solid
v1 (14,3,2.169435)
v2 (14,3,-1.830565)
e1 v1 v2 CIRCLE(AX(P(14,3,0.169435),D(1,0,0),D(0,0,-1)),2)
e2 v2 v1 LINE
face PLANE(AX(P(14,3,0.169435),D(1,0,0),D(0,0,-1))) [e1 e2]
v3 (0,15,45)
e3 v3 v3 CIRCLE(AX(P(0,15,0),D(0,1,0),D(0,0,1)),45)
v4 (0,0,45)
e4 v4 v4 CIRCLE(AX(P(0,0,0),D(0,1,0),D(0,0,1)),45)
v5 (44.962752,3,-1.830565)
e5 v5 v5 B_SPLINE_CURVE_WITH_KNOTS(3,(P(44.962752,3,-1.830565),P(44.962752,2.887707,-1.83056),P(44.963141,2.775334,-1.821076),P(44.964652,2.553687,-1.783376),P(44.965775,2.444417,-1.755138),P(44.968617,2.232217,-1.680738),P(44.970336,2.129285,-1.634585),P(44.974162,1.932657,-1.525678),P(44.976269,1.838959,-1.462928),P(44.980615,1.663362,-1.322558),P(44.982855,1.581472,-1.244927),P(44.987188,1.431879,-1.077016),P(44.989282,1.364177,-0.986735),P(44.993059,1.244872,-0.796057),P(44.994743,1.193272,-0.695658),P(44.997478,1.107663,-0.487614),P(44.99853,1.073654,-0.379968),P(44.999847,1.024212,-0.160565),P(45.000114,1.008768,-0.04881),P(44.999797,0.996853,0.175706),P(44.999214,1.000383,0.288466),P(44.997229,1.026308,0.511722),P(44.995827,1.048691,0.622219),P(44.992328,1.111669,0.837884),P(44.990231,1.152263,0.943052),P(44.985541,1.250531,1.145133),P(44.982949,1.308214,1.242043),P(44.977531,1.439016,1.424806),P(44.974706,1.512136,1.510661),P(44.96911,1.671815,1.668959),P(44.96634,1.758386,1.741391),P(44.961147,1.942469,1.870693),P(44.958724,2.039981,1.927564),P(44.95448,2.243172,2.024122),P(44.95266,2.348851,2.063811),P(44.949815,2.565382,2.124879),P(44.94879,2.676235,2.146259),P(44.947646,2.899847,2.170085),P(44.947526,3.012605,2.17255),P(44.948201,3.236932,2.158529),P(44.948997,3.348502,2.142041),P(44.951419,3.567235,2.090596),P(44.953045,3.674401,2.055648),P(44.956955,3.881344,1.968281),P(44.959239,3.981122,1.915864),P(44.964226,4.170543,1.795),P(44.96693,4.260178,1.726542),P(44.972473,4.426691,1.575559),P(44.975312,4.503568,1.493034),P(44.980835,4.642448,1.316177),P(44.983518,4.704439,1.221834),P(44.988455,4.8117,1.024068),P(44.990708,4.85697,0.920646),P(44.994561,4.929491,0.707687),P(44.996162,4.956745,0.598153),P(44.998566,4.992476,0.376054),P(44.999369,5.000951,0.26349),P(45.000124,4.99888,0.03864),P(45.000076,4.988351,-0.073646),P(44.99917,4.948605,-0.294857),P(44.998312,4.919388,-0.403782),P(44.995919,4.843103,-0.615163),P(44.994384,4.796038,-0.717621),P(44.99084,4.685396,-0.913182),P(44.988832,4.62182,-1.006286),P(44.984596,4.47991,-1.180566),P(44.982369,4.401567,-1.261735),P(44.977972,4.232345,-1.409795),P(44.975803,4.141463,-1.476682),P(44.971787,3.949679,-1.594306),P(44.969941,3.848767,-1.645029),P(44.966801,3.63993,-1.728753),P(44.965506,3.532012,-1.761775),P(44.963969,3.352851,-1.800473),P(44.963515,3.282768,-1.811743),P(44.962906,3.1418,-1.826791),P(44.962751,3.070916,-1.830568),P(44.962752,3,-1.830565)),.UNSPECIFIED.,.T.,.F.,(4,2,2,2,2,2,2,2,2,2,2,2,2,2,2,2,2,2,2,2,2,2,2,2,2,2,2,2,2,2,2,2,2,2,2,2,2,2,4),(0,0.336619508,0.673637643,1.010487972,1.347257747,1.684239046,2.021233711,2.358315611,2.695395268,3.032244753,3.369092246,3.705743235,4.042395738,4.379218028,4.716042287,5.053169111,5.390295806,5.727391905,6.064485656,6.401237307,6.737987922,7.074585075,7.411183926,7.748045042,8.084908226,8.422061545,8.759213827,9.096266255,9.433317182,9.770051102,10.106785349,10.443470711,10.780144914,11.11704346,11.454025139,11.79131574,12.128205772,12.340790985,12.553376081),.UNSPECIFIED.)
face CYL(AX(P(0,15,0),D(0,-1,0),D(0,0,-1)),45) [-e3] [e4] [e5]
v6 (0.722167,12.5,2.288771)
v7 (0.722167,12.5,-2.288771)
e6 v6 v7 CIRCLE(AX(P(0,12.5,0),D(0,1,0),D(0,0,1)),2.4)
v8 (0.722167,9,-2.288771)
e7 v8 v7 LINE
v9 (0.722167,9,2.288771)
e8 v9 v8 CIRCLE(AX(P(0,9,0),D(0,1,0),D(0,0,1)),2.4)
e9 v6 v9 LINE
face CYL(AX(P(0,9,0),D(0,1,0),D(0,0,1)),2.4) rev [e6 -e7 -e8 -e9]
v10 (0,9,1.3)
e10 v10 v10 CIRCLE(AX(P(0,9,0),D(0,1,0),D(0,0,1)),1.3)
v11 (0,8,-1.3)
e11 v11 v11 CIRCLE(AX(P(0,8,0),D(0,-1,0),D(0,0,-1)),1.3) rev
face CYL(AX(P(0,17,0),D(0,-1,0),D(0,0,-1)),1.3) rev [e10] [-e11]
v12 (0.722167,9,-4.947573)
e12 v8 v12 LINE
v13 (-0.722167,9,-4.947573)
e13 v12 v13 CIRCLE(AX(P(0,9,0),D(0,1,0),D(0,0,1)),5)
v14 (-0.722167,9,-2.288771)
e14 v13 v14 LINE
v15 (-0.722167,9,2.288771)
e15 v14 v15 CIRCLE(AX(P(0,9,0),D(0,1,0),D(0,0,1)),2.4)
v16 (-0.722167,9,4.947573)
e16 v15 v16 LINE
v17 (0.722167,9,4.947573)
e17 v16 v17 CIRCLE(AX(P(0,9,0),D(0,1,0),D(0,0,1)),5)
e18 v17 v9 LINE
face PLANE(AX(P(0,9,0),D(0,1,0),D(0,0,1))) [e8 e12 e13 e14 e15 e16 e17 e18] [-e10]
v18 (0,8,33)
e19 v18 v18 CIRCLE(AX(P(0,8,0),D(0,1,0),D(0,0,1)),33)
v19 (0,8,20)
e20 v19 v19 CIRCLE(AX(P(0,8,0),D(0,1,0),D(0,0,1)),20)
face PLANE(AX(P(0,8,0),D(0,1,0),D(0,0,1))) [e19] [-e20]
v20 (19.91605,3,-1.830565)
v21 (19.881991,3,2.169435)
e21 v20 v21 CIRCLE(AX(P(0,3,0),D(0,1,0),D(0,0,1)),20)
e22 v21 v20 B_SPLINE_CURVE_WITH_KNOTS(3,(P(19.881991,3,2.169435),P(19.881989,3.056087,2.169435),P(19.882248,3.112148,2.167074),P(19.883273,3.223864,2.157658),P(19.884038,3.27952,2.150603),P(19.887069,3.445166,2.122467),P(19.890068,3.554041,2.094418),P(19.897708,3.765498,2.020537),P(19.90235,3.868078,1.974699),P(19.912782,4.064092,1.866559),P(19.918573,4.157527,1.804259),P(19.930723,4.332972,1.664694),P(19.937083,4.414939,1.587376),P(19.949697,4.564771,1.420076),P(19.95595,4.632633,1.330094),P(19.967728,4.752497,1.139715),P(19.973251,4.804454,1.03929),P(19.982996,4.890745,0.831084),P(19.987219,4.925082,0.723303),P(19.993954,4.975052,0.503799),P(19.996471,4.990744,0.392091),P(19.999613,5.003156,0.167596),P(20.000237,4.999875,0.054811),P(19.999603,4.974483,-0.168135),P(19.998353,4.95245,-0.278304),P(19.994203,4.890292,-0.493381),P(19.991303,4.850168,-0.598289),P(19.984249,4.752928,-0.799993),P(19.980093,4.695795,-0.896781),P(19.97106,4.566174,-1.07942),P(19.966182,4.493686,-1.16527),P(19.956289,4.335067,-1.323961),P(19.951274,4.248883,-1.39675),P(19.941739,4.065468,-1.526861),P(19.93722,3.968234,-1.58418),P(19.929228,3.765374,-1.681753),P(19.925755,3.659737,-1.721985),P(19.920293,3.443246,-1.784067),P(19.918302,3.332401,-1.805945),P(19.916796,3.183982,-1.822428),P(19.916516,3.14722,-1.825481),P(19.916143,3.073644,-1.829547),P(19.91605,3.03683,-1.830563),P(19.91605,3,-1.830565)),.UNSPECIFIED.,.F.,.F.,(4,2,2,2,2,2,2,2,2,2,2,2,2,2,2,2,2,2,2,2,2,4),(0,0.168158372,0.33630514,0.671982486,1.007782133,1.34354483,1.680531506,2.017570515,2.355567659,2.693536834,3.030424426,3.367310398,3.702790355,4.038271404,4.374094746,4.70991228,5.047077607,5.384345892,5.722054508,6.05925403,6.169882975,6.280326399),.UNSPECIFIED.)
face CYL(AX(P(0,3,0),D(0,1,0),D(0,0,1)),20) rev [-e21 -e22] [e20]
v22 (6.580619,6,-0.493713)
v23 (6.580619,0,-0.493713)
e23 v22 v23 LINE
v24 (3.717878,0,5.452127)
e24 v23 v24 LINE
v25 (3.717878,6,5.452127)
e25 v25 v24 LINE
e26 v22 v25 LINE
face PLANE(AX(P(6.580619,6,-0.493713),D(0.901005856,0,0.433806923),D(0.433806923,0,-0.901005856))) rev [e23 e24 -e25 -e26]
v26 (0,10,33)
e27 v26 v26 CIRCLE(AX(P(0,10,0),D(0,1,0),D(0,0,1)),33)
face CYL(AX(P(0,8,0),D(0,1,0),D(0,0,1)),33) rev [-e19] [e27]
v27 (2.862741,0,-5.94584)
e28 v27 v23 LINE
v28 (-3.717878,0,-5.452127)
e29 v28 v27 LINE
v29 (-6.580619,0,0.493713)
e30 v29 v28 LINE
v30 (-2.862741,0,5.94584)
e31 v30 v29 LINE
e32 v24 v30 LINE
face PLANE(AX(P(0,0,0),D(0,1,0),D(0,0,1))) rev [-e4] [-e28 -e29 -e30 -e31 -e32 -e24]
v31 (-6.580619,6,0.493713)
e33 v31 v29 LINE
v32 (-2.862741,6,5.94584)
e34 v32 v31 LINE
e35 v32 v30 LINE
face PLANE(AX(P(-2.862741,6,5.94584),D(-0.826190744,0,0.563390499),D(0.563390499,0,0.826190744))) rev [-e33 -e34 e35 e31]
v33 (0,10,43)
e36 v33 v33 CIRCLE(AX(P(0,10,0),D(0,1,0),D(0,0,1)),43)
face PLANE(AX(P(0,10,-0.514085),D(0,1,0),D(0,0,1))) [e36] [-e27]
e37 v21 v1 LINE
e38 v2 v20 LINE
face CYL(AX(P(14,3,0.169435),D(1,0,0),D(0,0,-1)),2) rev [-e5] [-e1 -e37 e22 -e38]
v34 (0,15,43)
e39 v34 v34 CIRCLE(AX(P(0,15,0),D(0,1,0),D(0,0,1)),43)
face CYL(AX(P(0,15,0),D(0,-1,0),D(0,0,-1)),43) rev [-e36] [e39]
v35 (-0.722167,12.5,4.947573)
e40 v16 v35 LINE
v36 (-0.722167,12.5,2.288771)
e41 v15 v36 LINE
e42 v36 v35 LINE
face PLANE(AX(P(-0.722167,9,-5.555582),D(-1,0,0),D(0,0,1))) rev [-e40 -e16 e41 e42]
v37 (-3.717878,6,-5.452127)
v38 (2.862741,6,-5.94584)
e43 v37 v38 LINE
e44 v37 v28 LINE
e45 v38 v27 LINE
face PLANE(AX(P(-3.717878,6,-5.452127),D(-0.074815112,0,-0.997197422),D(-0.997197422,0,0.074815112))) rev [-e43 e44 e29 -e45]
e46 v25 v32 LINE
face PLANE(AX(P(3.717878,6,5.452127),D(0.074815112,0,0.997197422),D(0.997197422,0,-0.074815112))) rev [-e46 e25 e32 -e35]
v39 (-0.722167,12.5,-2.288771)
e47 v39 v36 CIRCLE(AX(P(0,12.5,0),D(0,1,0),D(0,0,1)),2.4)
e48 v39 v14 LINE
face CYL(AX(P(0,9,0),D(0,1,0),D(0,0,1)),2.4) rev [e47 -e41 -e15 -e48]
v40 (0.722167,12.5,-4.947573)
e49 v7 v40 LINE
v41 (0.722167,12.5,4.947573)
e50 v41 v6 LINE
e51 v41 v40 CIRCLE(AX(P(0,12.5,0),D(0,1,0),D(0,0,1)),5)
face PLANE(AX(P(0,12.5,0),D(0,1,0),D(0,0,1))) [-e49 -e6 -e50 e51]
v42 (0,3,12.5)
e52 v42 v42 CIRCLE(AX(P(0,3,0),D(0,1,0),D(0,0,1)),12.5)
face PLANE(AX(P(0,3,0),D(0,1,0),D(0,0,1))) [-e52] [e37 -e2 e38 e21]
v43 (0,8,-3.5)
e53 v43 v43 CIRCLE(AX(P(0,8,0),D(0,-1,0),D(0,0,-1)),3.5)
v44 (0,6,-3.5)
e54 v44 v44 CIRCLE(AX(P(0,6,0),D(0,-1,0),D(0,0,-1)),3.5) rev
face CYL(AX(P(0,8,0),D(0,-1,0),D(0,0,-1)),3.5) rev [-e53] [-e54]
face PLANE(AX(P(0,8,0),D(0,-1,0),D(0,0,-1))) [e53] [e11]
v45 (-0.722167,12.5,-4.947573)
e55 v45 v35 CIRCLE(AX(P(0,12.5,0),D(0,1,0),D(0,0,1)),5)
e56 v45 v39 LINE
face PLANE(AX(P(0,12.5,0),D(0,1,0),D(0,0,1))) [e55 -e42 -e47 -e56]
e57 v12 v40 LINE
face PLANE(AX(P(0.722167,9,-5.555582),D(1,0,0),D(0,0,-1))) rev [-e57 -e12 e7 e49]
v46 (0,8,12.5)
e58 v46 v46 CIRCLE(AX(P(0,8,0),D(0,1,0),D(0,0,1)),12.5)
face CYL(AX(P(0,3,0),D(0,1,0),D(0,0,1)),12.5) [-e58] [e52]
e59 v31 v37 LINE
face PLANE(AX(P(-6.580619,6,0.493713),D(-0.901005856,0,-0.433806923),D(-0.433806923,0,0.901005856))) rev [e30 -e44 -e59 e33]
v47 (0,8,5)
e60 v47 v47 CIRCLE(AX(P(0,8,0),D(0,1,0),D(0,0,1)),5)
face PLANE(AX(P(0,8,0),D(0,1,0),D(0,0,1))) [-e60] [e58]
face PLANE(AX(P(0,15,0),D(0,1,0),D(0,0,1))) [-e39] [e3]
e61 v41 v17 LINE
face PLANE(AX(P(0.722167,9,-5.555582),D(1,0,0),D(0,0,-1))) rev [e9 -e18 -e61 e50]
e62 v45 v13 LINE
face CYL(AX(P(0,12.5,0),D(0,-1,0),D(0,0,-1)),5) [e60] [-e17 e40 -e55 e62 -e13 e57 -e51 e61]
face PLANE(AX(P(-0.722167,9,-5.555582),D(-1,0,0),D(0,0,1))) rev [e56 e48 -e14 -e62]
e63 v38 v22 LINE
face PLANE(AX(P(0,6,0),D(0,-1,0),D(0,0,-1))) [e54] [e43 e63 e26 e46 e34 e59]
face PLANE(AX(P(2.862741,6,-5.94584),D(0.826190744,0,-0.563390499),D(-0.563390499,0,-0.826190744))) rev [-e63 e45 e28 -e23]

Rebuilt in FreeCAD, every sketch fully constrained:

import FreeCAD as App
import Part
import Sketcher

V = App.Vector
Q = App.Units.Quantity


def faces_at(feature, points):
    """Names of the faces that lie closest to the given points."""
    faces = feature.Shape.Faces
    near = lambda p: min(range(len(faces)), key=lambda i: faces[i].distToShape(Part.Vertex(*p))[0])
    return sorted({f"Face{near(p) + 1}" for p in points})


def add_polygon(sketch, points):
    """Adds a closed chain of lines whose ends are joined by coincident constraints."""
    first, n = sketch.GeometryCount, len(points)
    for a, b in zip(points, points[1:] + points[:1]):
        sketch.addGeometry(Part.LineSegment(App.Vector(*a, 0), App.Vector(*b, 0)), False)
    for i in range(n):
        sketch.addConstraint(Sketcher.Constraint("Coincident", first + i, 2, first + (i + 1) % n, 1))

doc = App.newDocument("Part")
params = doc.addObject("Spreadsheet::Sheet", "Params")
for row, (alias, value) in enumerate([
    ("sketch1_diameter", "90 mm"),
    ("pad1_length", "15 mm"),
    ("thickness_wall", "2 mm"),
    ("pad2_length", "8 mm"),
    ("sketch3_diameter", "66 mm"),
    ("pocket1_length", "2 mm"),
    ("sketch4_diameter", "10 mm"),
    ("pad3_length", "4.5 mm"),
    ("pocket2_length", "3.5 mm"),
    ("sketch6_diameter", "4.8 mm"),
    ("pocket3_length", "3.5 mm"),
    ("sketch7_diameter", "2.6 mm"),
    ("pocket4_length", "17 mm"),
    ("sketch8_diameter", "7 mm"),
    ("pocket5_length", "8 mm"),
    ("sketch9_diameter", "4 mm"),
    ("pocket6_length", "77.485293 mm"),
    ("pocket6_length2", "1 mm"),
    ("sketch10_diameter", "40 mm"),
    ("sketch10_diameter2", "25 mm"),
    ("pocket7_length", "5 mm"),
    ("pocket8_length", "6 mm"),
], start=1):
    params.set(f"A{row}", alias)
    params.set(f"B{row}", "=" + value)
    params.setAlias(f"B{row}", alias)

body = doc.addObject("PartDesign::Body", "Body")

# Sketch on XZ plane
sketch1 = body.newObject("Sketcher::SketchObject", "Sketch")
sketch1.AttachmentSupport = (doc.getObject("XZ_Plane"), [""])
sketch1.MapMode = "FlatFace"
sketch1.addGeometry(Part.Circle(V(0, 0, 0), V(0, 0, 1), 45), False)
sketch1.addConstraint(Sketcher.Constraint("Coincident", 0, 3, -1, 1))
sketch1.addConstraint(Sketcher.Constraint("Diameter", 0, Q("90 mm")))
sketch1.setExpression("Constraints[1]", "Params.sketch1_diameter")
pad1 = body.newObject("PartDesign::Pad", "Pad")
pad1.Profile = sketch1
pad1.setExpression("Length", "Params.pad1_length")
pad1.Reversed = True
doc.recompute()

thickness = body.newObject("PartDesign::Thickness", "Thickness")
thickness.Base = (pad1, faces_at(pad1, [(0, 15, 0)]))
thickness.setExpression("Value", "Params.thickness_wall")
thickness.Reversed = True
thickness.Join = "Intersection"

# Sketch on XZ plane
sketch2 = body.newObject("Sketcher::SketchObject", "Sketch001")
sketch2.AttachmentSupport = (doc.getObject("XZ_Plane"), [""])
sketch2.MapMode = "FlatFace"
sketch2.AttachmentOffset = App.Placement(V(0, 0, -2), App.Rotation())
sketch2.addGeometry(Part.Circle(V(0, -1, 0), V(0, 0, 1), 44), False)
sketch2.addConstraint(Sketcher.Constraint("PointOnObject", 0, 3, -2))
sketch2.addConstraint(Sketcher.Constraint("Diameter", 0, Q("87.02817 mm")))
sketch2.addConstraint(Sketcher.Constraint("DistanceY", 0, 3, -1, 1, Q("0.514085 mm")))
pad2 = body.newObject("PartDesign::Pad", "Pad001")
pad2.Profile = sketch2
pad2.setExpression("Length", "Params.pad2_length")
pad2.Reversed = True

# Sketch on XZ plane
sketch3 = body.newObject("Sketcher::SketchObject", "Sketch002")
sketch3.AttachmentSupport = (doc.getObject("XZ_Plane"), [""])
sketch3.MapMode = "FlatFace"
sketch3.AttachmentOffset = App.Placement(V(0, 0, -10), App.Rotation())
sketch3.addGeometry(Part.Circle(V(0, 0, 0), V(0, 0, 1), 33), False)
sketch3.addConstraint(Sketcher.Constraint("Coincident", 0, 3, -1, 1))
sketch3.addConstraint(Sketcher.Constraint("Diameter", 0, Q("66 mm")))
sketch3.setExpression("Constraints[1]", "Params.sketch3_diameter")
pocket1 = body.newObject("PartDesign::Pocket", "Pocket")
pocket1.Profile = sketch3
pocket1.setExpression("Length", "Params.pocket1_length")
pocket1.Reversed = True

# Sketch on XZ plane
sketch4 = body.newObject("Sketcher::SketchObject", "Sketch003")
sketch4.AttachmentSupport = (doc.getObject("XZ_Plane"), [""])
sketch4.MapMode = "FlatFace"
sketch4.AttachmentOffset = App.Placement(V(0, 0, -8), App.Rotation())
sketch4.addGeometry(Part.Circle(V(0, 0, 0), V(0, 0, 1), 5), False)
sketch4.addConstraint(Sketcher.Constraint("Coincident", 0, 3, -1, 1))
sketch4.addConstraint(Sketcher.Constraint("Diameter", 0, Q("10 mm")))
sketch4.setExpression("Constraints[1]", "Params.sketch4_diameter")
pad3 = body.newObject("PartDesign::Pad", "Pad002")
pad3.Profile = sketch4
pad3.setExpression("Length", "Params.pad3_length")
pad3.Reversed = True

# Sketch on XZ plane
sketch5 = body.newObject("Sketcher::SketchObject", "Sketch004")
sketch5.AttachmentSupport = (doc.getObject("XZ_Plane"), [""])
sketch5.MapMode = "FlatFace"
sketch5.AttachmentOffset = App.Placement(V(0, 0, -12.5), App.Rotation())
add_polygon(sketch5, [(-0.7, -5.6), (-0.7, 5.6), (0.7, 5.6), (0.7, -5.6)])  # lines 0-3
sketch5.addConstraint(Sketcher.Constraint("Vertical", 0))
sketch5.addConstraint(Sketcher.Constraint("Horizontal", 1))
sketch5.addConstraint(Sketcher.Constraint("Vertical", 2))
sketch5.addConstraint(Sketcher.Constraint("Horizontal", 3))
sketch5.addConstraint(Sketcher.Constraint("Symmetric", 0, 2, 2, 2, -1, 1))
sketch5.addConstraint(Sketcher.Constraint("DistanceX", 1, 1, 1, 2, Q("1.444335 mm")))
sketch5.addConstraint(Sketcher.Constraint("DistanceY", 0, 1, 0, 2, Q("11.111164 mm")))
pocket2 = body.newObject("PartDesign::Pocket", "Pocket001")
pocket2.Profile = sketch5
pocket2.setExpression("Length", "Params.pocket2_length")
pocket2.Reversed = True

# Sketch on XZ plane
sketch6 = body.newObject("Sketcher::SketchObject", "Sketch005")
sketch6.AttachmentSupport = (doc.getObject("XZ_Plane"), [""])
sketch6.MapMode = "FlatFace"
sketch6.AttachmentOffset = App.Placement(V(0, 0, -12.5), App.Rotation())
sketch6.addGeometry(Part.Circle(V(0, 0, 0), V(0, 0, 1), 2.4), False)
sketch6.addConstraint(Sketcher.Constraint("Coincident", 0, 3, -1, 1))
sketch6.addConstraint(Sketcher.Constraint("Diameter", 0, Q("4.8 mm")))
sketch6.setExpression("Constraints[1]", "Params.sketch6_diameter")
pocket3 = body.newObject("PartDesign::Pocket", "Pocket002")
pocket3.Profile = sketch6
pocket3.setExpression("Length", "Params.pocket3_length")
pocket3.Reversed = True

# Sketch on XZ plane
sketch7 = body.newObject("Sketcher::SketchObject", "Sketch006")
sketch7.AttachmentSupport = (doc.getObject("XZ_Plane"), [""])
sketch7.MapMode = "FlatFace"
sketch7.addGeometry(Part.Circle(V(0, 0, 0), V(0, 0, 1), 1.3), False)
sketch7.addConstraint(Sketcher.Constraint("Coincident", 0, 3, -1, 1))
sketch7.addConstraint(Sketcher.Constraint("Diameter", 0, Q("2.6 mm")))
sketch7.setExpression("Constraints[1]", "Params.sketch7_diameter")
pocket4 = body.newObject("PartDesign::Pocket", "Pocket003")
pocket4.Profile = sketch7
pocket4.setExpression("Length", "Params.pocket4_length")

# Sketch on XZ plane
sketch8 = body.newObject("Sketcher::SketchObject", "Sketch007")
sketch8.AttachmentSupport = (doc.getObject("XZ_Plane"), [""])
sketch8.MapMode = "FlatFace"
sketch8.addGeometry(Part.Circle(V(0, 0, 0), V(0, 0, 1), 3.5), False)
sketch8.addConstraint(Sketcher.Constraint("Coincident", 0, 3, -1, 1))
sketch8.addConstraint(Sketcher.Constraint("Diameter", 0, Q("7 mm")))
sketch8.setExpression("Constraints[1]", "Params.sketch8_diameter")
pocket5 = body.newObject("PartDesign::Pocket", "Pocket004")
pocket5.Profile = sketch8
pocket5.setExpression("Length", "Params.pocket5_length")

# Sketch on YZ plane
sketch9 = body.newObject("Sketcher::SketchObject", "Sketch008")
sketch9.AttachmentSupport = (doc.getObject("YZ_Plane"), [""])
sketch9.MapMode = "FlatFace"
sketch9.AttachmentOffset = App.Placement(V(0, 0, 15), App.Rotation())
sketch9.addGeometry(Part.Circle(V(3, 0.2, 0), V(0, 0, 1), 2), False)
sketch9.addConstraint(Sketcher.Constraint("Diameter", 0, Q("4 mm")))
sketch9.addConstraint(Sketcher.Constraint("DistanceX", -1, 1, 0, 3, Q("3 mm")))
sketch9.addConstraint(Sketcher.Constraint("DistanceY", -1, 1, 0, 3, Q("0.169435 mm")))
sketch9.setExpression("Constraints[0]", "Params.sketch9_diameter")
pocket6 = body.newObject("PartDesign::Pocket", "Pocket005")
pocket6.Profile = sketch9
pocket6.Type = "TwoLengths"
pocket6.setExpression("Length", "Params.pocket6_length")
pocket6.setExpression("Length2", "Params.pocket6_length2")
pocket6.Reversed = True

# Sketch on XZ plane
sketch10 = body.newObject("Sketcher::SketchObject", "Sketch009")
sketch10.AttachmentSupport = (doc.getObject("XZ_Plane"), [""])
sketch10.MapMode = "FlatFace"
sketch10.AttachmentOffset = App.Placement(V(0, 0, -8), App.Rotation())
sketch10.addGeometry(Part.Circle(V(0, 0, 0), V(0, 0, 1), 20), False)
sketch10.addGeometry(Part.Circle(V(0, 0, 0), V(0, 0, 1), 12), False)
sketch10.addConstraint(Sketcher.Constraint("Coincident", 0, 3, -1, 1))
sketch10.addConstraint(Sketcher.Constraint("Coincident", 1, 3, -1, 1))
sketch10.addConstraint(Sketcher.Constraint("Diameter", 0, Q("40 mm")))
sketch10.addConstraint(Sketcher.Constraint("Diameter", 1, Q("25 mm")))
sketch10.setExpression("Constraints[2]", "Params.sketch10_diameter")
sketch10.setExpression("Constraints[3]", "Params.sketch10_diameter2")
pocket7 = body.newObject("PartDesign::Pocket", "Pocket006")
pocket7.Profile = sketch10
pocket7.setExpression("Length", "Params.pocket7_length")
pocket7.Reversed = True

# Sketch on XZ plane
sketch11 = body.newObject("Sketcher::SketchObject", "Sketch010")
sketch11.AttachmentSupport = (doc.getObject("XZ_Plane"), [""])
sketch11.MapMode = "FlatFace"
add_polygon(sketch11, [(3, -6), (7, 0), (4, 5), (-3, 6), (-7, 0), (-4, -5)])  # lines 0-5
sketch11.addConstraint(Sketcher.Constraint("Symmetric", 0, 2, 3, 2, -1, 1))
sketch11.addConstraint(Sketcher.Constraint("Symmetric", 1, 2, 4, 2, -1, 1))
sketch11.addConstraint(Sketcher.Constraint("Symmetric", 2, 2, 5, 2, -1, 1))
sketch11.addConstraint(Sketcher.Constraint("Equal", 0, 1))
sketch11.addConstraint(Sketcher.Constraint("Equal", 1, 2))
sketch11.addConstraint(Sketcher.Constraint("DistanceX", -1, 1, 0, 2, Q("6.580619 mm")))
sketch11.addConstraint(Sketcher.Constraint("DistanceX", 2, 2, -1, 1, Q("2.862741 mm")))
sketch11.addConstraint(Sketcher.Constraint("DistanceY", -1, 1, 2, 2, Q("5.94584 mm")))
sketch11.addConstraint(Sketcher.Constraint("DistanceX", 1, 2, 0, 2, Q("2.862741 mm")))
pocket8 = body.newObject("PartDesign::Pocket", "Pocket007")
pocket8.Profile = sketch11
pocket8.setExpression("Length", "Params.pocket8_length")

doc.recompute()
